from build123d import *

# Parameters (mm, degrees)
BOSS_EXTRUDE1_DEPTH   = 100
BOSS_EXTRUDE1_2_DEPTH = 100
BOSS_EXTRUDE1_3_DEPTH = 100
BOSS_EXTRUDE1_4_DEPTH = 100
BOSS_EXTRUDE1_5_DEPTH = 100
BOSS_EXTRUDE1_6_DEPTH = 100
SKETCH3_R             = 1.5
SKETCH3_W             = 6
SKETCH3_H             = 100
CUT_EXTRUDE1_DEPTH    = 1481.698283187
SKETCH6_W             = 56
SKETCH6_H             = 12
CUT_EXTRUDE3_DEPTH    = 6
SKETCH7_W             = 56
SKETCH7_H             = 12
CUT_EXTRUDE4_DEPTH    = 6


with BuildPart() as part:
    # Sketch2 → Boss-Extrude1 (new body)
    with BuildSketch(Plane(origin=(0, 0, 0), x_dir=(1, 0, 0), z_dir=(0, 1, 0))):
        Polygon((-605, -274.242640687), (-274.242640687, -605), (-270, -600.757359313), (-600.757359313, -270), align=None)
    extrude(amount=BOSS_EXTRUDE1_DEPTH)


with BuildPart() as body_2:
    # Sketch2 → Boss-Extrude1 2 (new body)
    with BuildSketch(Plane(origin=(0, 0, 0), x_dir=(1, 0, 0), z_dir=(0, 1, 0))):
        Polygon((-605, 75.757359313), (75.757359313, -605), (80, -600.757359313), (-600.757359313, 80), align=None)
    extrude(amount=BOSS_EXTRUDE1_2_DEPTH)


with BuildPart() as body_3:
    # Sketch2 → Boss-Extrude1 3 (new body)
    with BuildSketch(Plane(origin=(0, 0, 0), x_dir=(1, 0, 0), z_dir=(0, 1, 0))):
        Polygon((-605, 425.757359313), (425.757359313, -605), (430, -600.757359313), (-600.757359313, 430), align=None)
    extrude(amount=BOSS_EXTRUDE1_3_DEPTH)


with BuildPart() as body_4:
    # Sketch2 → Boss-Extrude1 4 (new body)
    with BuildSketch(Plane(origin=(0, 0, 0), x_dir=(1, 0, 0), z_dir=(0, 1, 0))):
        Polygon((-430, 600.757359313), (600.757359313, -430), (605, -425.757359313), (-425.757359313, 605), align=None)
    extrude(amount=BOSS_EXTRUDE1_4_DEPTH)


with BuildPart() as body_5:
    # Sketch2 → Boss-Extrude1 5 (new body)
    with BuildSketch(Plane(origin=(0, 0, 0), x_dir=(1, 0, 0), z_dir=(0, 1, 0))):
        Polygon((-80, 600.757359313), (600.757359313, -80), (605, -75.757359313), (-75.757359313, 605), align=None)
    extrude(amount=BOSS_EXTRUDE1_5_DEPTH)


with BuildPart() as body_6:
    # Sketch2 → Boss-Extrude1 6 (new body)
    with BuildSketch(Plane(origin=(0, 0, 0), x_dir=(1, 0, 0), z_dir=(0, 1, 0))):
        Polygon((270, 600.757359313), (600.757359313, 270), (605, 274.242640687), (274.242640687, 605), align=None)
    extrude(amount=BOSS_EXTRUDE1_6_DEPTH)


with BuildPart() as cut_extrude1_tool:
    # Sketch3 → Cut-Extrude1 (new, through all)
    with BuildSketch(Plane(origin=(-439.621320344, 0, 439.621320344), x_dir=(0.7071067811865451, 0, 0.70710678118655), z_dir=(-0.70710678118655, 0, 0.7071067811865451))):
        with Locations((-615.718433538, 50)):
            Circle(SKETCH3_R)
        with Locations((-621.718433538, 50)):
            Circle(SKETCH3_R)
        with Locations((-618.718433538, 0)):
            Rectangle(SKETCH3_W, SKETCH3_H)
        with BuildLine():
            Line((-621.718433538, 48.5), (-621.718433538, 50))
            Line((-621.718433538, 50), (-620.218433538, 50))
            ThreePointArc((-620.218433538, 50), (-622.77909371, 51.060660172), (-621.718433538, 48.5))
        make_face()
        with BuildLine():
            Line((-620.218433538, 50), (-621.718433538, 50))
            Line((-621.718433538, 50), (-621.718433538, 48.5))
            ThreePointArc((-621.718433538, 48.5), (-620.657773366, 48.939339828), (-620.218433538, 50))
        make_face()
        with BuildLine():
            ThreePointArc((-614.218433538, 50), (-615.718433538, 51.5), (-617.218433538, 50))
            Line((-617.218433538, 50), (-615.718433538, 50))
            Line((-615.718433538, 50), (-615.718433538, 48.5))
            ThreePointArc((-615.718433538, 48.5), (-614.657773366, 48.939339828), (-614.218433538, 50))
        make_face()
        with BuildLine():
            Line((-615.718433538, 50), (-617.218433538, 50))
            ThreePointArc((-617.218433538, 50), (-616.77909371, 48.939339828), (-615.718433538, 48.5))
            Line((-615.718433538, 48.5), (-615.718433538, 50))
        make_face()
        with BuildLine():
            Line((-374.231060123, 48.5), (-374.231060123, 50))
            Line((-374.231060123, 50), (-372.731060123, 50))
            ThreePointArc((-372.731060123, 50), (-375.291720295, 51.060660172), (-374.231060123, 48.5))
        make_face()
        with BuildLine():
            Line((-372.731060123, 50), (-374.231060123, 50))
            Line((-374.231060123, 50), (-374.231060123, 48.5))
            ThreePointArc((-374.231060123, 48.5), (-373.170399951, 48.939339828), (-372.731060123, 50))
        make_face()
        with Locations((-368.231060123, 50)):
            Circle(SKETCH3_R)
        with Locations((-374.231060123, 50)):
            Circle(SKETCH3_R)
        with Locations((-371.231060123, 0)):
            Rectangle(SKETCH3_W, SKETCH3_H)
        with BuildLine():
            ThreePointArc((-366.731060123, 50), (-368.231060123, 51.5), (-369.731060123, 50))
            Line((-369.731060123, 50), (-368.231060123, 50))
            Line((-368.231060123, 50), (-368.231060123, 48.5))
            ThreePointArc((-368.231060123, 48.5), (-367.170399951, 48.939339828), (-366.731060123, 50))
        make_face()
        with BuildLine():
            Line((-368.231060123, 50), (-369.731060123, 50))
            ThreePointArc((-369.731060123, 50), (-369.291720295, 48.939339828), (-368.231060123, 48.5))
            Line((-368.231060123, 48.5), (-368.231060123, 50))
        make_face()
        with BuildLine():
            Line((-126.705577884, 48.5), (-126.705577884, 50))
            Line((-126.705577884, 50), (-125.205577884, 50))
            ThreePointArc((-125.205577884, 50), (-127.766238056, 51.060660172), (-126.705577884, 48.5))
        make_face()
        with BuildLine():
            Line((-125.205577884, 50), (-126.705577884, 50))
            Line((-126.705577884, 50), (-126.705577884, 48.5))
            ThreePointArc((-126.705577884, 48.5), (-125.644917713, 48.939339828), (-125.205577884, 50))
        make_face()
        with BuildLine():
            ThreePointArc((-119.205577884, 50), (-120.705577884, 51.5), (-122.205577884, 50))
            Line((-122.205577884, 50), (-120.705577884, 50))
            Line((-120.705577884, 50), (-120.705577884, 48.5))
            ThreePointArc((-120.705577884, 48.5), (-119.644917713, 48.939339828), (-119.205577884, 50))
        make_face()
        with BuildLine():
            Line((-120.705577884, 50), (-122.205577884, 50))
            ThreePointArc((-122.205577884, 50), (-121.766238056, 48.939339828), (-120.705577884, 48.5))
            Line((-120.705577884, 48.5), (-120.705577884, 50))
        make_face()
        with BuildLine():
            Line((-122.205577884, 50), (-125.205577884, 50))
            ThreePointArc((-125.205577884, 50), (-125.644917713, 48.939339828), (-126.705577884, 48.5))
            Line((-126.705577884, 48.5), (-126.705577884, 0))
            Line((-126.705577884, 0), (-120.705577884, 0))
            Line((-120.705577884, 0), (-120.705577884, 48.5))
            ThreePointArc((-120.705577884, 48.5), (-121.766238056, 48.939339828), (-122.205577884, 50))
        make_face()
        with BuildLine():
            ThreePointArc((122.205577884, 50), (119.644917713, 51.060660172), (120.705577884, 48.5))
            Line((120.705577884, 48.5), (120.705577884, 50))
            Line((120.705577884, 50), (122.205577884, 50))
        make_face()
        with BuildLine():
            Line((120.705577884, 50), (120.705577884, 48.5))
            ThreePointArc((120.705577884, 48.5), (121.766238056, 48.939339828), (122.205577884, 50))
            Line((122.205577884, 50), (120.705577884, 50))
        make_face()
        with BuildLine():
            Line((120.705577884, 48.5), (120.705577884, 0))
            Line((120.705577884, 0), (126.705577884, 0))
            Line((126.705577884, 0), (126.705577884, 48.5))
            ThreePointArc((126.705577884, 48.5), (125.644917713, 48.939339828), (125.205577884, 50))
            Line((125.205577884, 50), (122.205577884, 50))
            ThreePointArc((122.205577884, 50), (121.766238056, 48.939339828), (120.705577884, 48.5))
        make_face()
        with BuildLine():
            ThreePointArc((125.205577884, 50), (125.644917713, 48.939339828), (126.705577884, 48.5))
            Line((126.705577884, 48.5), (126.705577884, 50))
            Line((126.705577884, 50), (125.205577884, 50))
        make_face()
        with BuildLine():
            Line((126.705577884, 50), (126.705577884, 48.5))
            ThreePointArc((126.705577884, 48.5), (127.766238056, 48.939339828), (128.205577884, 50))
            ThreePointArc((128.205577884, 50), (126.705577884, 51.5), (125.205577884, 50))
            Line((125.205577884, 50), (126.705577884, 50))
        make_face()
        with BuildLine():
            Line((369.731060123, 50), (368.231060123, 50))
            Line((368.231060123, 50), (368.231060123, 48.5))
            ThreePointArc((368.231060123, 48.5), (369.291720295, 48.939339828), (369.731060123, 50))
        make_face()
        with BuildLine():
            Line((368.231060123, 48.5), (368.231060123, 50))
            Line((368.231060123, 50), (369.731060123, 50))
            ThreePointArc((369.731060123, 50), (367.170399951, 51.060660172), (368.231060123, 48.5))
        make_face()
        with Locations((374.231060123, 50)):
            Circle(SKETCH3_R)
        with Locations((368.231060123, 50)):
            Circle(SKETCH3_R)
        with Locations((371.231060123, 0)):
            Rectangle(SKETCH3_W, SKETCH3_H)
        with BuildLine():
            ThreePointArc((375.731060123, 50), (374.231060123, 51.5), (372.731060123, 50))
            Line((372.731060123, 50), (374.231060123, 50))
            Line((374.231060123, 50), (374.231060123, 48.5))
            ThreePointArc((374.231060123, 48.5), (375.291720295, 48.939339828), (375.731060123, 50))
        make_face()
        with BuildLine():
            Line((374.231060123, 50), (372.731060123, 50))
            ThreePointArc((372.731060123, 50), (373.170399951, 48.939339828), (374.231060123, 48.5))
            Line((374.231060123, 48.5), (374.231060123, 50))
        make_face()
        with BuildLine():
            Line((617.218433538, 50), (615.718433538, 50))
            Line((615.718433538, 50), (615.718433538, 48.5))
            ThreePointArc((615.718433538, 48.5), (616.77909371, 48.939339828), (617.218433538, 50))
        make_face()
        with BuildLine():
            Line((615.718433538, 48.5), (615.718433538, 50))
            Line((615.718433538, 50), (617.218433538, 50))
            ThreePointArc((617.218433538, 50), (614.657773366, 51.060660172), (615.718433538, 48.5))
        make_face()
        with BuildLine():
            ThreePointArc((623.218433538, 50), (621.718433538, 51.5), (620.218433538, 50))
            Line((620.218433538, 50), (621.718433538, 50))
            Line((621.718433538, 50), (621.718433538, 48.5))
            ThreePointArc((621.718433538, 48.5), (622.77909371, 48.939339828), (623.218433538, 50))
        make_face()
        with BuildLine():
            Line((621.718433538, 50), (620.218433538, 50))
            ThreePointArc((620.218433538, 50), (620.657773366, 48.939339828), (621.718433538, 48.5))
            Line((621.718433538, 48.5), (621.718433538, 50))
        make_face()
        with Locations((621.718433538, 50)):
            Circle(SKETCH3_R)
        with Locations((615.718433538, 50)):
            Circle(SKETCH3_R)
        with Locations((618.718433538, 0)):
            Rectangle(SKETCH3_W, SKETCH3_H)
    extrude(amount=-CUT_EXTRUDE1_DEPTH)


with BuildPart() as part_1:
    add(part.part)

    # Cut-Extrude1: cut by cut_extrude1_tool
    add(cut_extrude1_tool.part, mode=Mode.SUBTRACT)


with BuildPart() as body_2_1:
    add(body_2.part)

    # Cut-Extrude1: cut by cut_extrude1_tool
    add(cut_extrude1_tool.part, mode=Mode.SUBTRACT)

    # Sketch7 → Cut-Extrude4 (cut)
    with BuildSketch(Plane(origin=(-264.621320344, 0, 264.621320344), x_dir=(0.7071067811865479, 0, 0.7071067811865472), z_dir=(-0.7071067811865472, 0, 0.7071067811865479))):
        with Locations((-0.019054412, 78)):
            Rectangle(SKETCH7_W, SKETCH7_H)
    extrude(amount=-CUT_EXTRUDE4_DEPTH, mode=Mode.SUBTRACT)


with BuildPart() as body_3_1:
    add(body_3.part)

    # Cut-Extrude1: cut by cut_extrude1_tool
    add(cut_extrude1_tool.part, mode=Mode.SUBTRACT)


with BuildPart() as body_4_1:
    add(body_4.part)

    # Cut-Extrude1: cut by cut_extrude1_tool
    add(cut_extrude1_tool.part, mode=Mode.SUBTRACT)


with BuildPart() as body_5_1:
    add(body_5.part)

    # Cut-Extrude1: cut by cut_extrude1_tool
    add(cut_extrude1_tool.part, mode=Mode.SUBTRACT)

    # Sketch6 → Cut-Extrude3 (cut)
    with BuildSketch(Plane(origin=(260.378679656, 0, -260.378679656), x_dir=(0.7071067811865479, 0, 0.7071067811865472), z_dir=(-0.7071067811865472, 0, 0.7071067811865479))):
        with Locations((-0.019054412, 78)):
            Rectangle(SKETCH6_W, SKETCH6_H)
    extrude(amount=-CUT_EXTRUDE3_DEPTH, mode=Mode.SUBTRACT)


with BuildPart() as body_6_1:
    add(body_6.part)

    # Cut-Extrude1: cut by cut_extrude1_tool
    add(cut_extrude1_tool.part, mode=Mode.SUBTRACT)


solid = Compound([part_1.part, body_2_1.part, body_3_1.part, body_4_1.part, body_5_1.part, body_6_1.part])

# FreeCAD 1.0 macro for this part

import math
import FreeCAD as App
import Part
import Sketcher
Q = App.Units.Quantity

doc = App.newDocument("Part")
body = doc.addObject("PartDesign::Body", "Body")

sketch1 = doc.addObject("Sketcher::SketchObject", "Sketch")
body.addObject(sketch1)
sketch1.AttachmentSupport = (doc.XZ_Plane, [""])
sketch1.MapMode = "FlatFace"
sketch1.addGeometry(Part.LineSegment(App.Vector(-605, 274.242641, 0), App.Vector(-274.242641, 605, 0)), False)
sketch1.addGeometry(Part.LineSegment(App.Vector(-274.242641, 605, 0), App.Vector(-270, 600.757359, 0)), False)
sketch1.addGeometry(Part.LineSegment(App.Vector(-270, 600.757359, 0), App.Vector(-600.757359, 270, 0)), False)
sketch1.addGeometry(Part.LineSegment(App.Vector(-600.757359, 270, 0), App.Vector(-605, 274.242641, 0)), False)
sketch1.addConstraint(Sketcher.Constraint("Coincident", 0, 2, 1, 1))
sketch1.addConstraint(Sketcher.Constraint("Coincident", 1, 2, 2, 1))
sketch1.addConstraint(Sketcher.Constraint("Coincident", 2, 2, 3, 1))
sketch1.addConstraint(Sketcher.Constraint("Coincident", 3, 2, 0, 1))
sketch1.addConstraint(Sketcher.Constraint("Perpendicular", 0, 1))
sketch1.addConstraint(Sketcher.Constraint("Perpendicular", 1, 2))
sketch1.addConstraint(Sketcher.Constraint("Perpendicular", 2, 3))
sketch1.addConstraint(Sketcher.Constraint("Angle", 0, Q("45 deg")))
sketch1.addConstraint(Sketcher.Constraint("Distance", 1, 6.0))
sketch1.addConstraint(Sketcher.Constraint("DistanceY", -1, 1, 0, 2, 605.0))
sketch1.addConstraint(Sketcher.Constraint("DistanceX", 1, 2, -1, 1, 270.0))
sketch1.addConstraint(Sketcher.Constraint("DistanceY", -1, 1, 2, 2, 270.0))
pad1 = doc.addObject("PartDesign::Pad", "Pad")
body.addObject(pad1)
pad1.Profile = sketch1
pad1.Length = 100
pad1.Reversed = True
body2 = doc.addObject("PartDesign::Body", "Body001")

sketch2 = doc.addObject("Sketcher::SketchObject", "Sketch001")
body2.addObject(sketch2)
sketch2.AttachmentSupport = (doc.getObject("XZ_Plane001"), [""])
sketch2.MapMode = "FlatFace"
sketch2.addGeometry(Part.LineSegment(App.Vector(-605, -75.757359, 0), App.Vector(75.757359, 605, 0)), False)
sketch2.addGeometry(Part.LineSegment(App.Vector(75.757359, 605, 0), App.Vector(80, 600.757359, 0)), False)
sketch2.addGeometry(Part.LineSegment(App.Vector(80, 600.757359, 0), App.Vector(-600.757359, -80, 0)), False)
sketch2.addGeometry(Part.LineSegment(App.Vector(-600.757359, -80, 0), App.Vector(-605, -75.757359, 0)), False)
sketch2.addConstraint(Sketcher.Constraint("Coincident", 0, 2, 1, 1))
sketch2.addConstraint(Sketcher.Constraint("Coincident", 1, 2, 2, 1))
sketch2.addConstraint(Sketcher.Constraint("Coincident", 2, 2, 3, 1))
sketch2.addConstraint(Sketcher.Constraint("Coincident", 3, 2, 0, 1))
sketch2.addConstraint(Sketcher.Constraint("Perpendicular", 0, 1))
sketch2.addConstraint(Sketcher.Constraint("Perpendicular", 1, 2))
sketch2.addConstraint(Sketcher.Constraint("Perpendicular", 2, 3))
sketch2.addConstraint(Sketcher.Constraint("Angle", 0, Q("45 deg")))
sketch2.addConstraint(Sketcher.Constraint("Distance", 1, 6.0))
sketch2.addConstraint(Sketcher.Constraint("DistanceY", -1, 1, 0, 2, 605.0))
sketch2.addConstraint(Sketcher.Constraint("DistanceX", -1, 1, 1, 2, 80.0))
sketch2.addConstraint(Sketcher.Constraint("DistanceY", 2, 2, -1, 1, 80.0))
pad2 = doc.addObject("PartDesign::Pad", "Pad001")
body2.addObject(pad2)
pad2.Profile = sketch2
pad2.Length = 100
pad2.Reversed = True
body3 = doc.addObject("PartDesign::Body", "Body002")

sketch3 = doc.addObject("Sketcher::SketchObject", "Sketch002")
body3.addObject(sketch3)
sketch3.AttachmentSupport = (doc.getObject("XZ_Plane002"), [""])
sketch3.MapMode = "FlatFace"
sketch3.addGeometry(Part.LineSegment(App.Vector(-605, -425.757359, 0), App.Vector(425.757359, 605, 0)), False)
sketch3.addGeometry(Part.LineSegment(App.Vector(425.757359, 605, 0), App.Vector(430, 600.757359, 0)), False)
sketch3.addGeometry(Part.LineSegment(App.Vector(430, 600.757359, 0), App.Vector(-600.757359, -430, 0)), False)
sketch3.addGeometry(Part.LineSegment(App.Vector(-600.757359, -430, 0), App.Vector(-605, -425.757359, 0)), False)
sketch3.addConstraint(Sketcher.Constraint("Coincident", 0, 2, 1, 1))
sketch3.addConstraint(Sketcher.Constraint("Coincident", 1, 2, 2, 1))
sketch3.addConstraint(Sketcher.Constraint("Coincident", 2, 2, 3, 1))
sketch3.addConstraint(Sketcher.Constraint("Coincident", 3, 2, 0, 1))
sketch3.addConstraint(Sketcher.Constraint("Perpendicular", 0, 1))
sketch3.addConstraint(Sketcher.Constraint("Perpendicular", 1, 2))
sketch3.addConstraint(Sketcher.Constraint("Perpendicular", 2, 3))
sketch3.addConstraint(Sketcher.Constraint("Angle", 0, Q("45 deg")))
sketch3.addConstraint(Sketcher.Constraint("Distance", 1, 6.0))
sketch3.addConstraint(Sketcher.Constraint("DistanceY", -1, 1, 0, 2, 605.0))
sketch3.addConstraint(Sketcher.Constraint("DistanceX", -1, 1, 1, 2, 430.0))
sketch3.addConstraint(Sketcher.Constraint("DistanceY", 2, 2, -1, 1, 430.0))
pad3 = doc.addObject("PartDesign::Pad", "Pad002")
body3.addObject(pad3)
pad3.Profile = sketch3
pad3.Length = 100
pad3.Reversed = True
body4 = doc.addObject("PartDesign::Body", "Body003")

sketch4 = doc.addObject("Sketcher::SketchObject", "Sketch003")
body4.addObject(sketch4)
sketch4.AttachmentSupport = (doc.getObject("XZ_Plane003"), [""])
sketch4.MapMode = "FlatFace"
sketch4.addGeometry(Part.LineSegment(App.Vector(-430, -600.757359, 0), App.Vector(600.757359, 430, 0)), False)
sketch4.addGeometry(Part.LineSegment(App.Vector(600.757359, 430, 0), App.Vector(605, 425.757359, 0)), False)
sketch4.addGeometry(Part.LineSegment(App.Vector(605, 425.757359, 0), App.Vector(-425.757359, -605, 0)), False)
sketch4.addGeometry(Part.LineSegment(App.Vector(-425.757359, -605, 0), App.Vector(-430, -600.757359, 0)), False)
sketch4.addConstraint(Sketcher.Constraint("Coincident", 0, 2, 1, 1))
sketch4.addConstraint(Sketcher.Constraint("Coincident", 1, 2, 2, 1))
sketch4.addConstraint(Sketcher.Constraint("Coincident", 2, 2, 3, 1))
sketch4.addConstraint(Sketcher.Constraint("Coincident", 3, 2, 0, 1))
sketch4.addConstraint(Sketcher.Constraint("Perpendicular", 0, 1))
sketch4.addConstraint(Sketcher.Constraint("Perpendicular", 1, 2))
sketch4.addConstraint(Sketcher.Constraint("Perpendicular", 2, 3))
sketch4.addConstraint(Sketcher.Constraint("Angle", 0, Q("45 deg")))
sketch4.addConstraint(Sketcher.Constraint("Distance", 1, 6.0))
sketch4.addConstraint(Sketcher.Constraint("DistanceY", -1, 1, 0, 2, 430.0))
sketch4.addConstraint(Sketcher.Constraint("DistanceX", -1, 1, 1, 2, 605.0))
sketch4.addConstraint(Sketcher.Constraint("DistanceY", 2, 2, -1, 1, 605.0))
pad4 = doc.addObject("PartDesign::Pad", "Pad003")
body4.addObject(pad4)
pad4.Profile = sketch4
pad4.Length = 100
pad4.Reversed = True
body5 = doc.addObject("PartDesign::Body", "Body004")

sketch5 = doc.addObject("Sketcher::SketchObject", "Sketch004")
body5.addObject(sketch5)
sketch5.AttachmentSupport = (doc.getObject("XZ_Plane004"), [""])
sketch5.MapMode = "FlatFace"
sketch5.addGeometry(Part.LineSegment(App.Vector(-80, -600.757359, 0), App.Vector(600.757359, 80, 0)), False)
sketch5.addGeometry(Part.LineSegment(App.Vector(600.757359, 80, 0), App.Vector(605, 75.757359, 0)), False)
sketch5.addGeometry(Part.LineSegment(App.Vector(605, 75.757359, 0), App.Vector(-75.757359, -605, 0)), False)
sketch5.addGeometry(Part.LineSegment(App.Vector(-75.757359, -605, 0), App.Vector(-80, -600.757359, 0)), False)
sketch5.addConstraint(Sketcher.Constraint("Coincident", 0, 2, 1, 1))
sketch5.addConstraint(Sketcher.Constraint("Coincident", 1, 2, 2, 1))
sketch5.addConstraint(Sketcher.Constraint("Coincident", 2, 2, 3, 1))
sketch5.addConstraint(Sketcher.Constraint("Coincident", 3, 2, 0, 1))
sketch5.addConstraint(Sketcher.Constraint("Perpendicular", 0, 1))
sketch5.addConstraint(Sketcher.Constraint("Perpendicular", 1, 2))
sketch5.addConstraint(Sketcher.Constraint("Perpendicular", 2, 3))
sketch5.addConstraint(Sketcher.Constraint("Angle", 0, Q("45 deg")))
sketch5.addConstraint(Sketcher.Constraint("Distance", 1, 6.0))
sketch5.addConstraint(Sketcher.Constraint("DistanceY", -1, 1, 0, 2, 80.0))
sketch5.addConstraint(Sketcher.Constraint("DistanceX", -1, 1, 1, 2, 605.0))
sketch5.addConstraint(Sketcher.Constraint("DistanceY", 2, 2, -1, 1, 605.0))
pad5 = doc.addObject("PartDesign::Pad", "Pad004")
body5.addObject(pad5)
pad5.Profile = sketch5
pad5.Length = 100
pad5.Reversed = True
body6 = doc.addObject("PartDesign::Body", "Body005")

sketch6 = doc.addObject("Sketcher::SketchObject", "Sketch005")
body6.addObject(sketch6)
sketch6.AttachmentSupport = (doc.getObject("XZ_Plane005"), [""])
sketch6.MapMode = "FlatFace"
sketch6.addGeometry(Part.LineSegment(App.Vector(270, -600.757359, 0), App.Vector(600.757359, -270, 0)), False)
sketch6.addGeometry(Part.LineSegment(App.Vector(600.757359, -270, 0), App.Vector(605, -274.242641, 0)), False)
sketch6.addGeometry(Part.LineSegment(App.Vector(605, -274.242641, 0), App.Vector(274.242641, -605, 0)), False)
sketch6.addGeometry(Part.LineSegment(App.Vector(274.242641, -605, 0), App.Vector(270, -600.757359, 0)), False)
sketch6.addConstraint(Sketcher.Constraint("Coincident", 0, 2, 1, 1))
sketch6.addConstraint(Sketcher.Constraint("Coincident", 1, 2, 2, 1))
sketch6.addConstraint(Sketcher.Constraint("Coincident", 2, 2, 3, 1))
sketch6.addConstraint(Sketcher.Constraint("Coincident", 3, 2, 0, 1))
sketch6.addConstraint(Sketcher.Constraint("Perpendicular", 0, 1))
sketch6.addConstraint(Sketcher.Constraint("Perpendicular", 1, 2))
sketch6.addConstraint(Sketcher.Constraint("Perpendicular", 2, 3))
sketch6.addConstraint(Sketcher.Constraint("Angle", 0, Q("45 deg")))
sketch6.addConstraint(Sketcher.Constraint("Distance", 1, 6.0))
sketch6.addConstraint(Sketcher.Constraint("DistanceY", 0, 2, -1, 1, 270.0))
sketch6.addConstraint(Sketcher.Constraint("DistanceX", -1, 1, 1, 2, 605.0))
sketch6.addConstraint(Sketcher.Constraint("DistanceY", 2, 2, -1, 1, 605.0))
pad6 = doc.addObject("PartDesign::Pad", "Pad005")
body6.addObject(pad6)
pad6.Profile = sketch6
pad6.Length = 100
pad6.Reversed = True
body7 = doc.addObject("PartDesign::Body", "Body006")
body7.AllowCompound = True

sketch7 = doc.addObject("Sketcher::SketchObject", "Sketch006")
body7.addObject(sketch7)
sketch7.Placement = App.Placement(App.Vector(-439.62132, 0, 439.62132), App.Rotation(App.Vector(0.707106781, 0, 0.707106781), App.Vector(0, 0.999999999, 0), App.Vector(-0.707106781, 0, 0.707106781), "ZXY"))
sketch7.addGeometry(Part.LineSegment(App.Vector(-621.718433, 48.5, 0), App.Vector(-621.718433, -50, 0)), False)
sketch7.addGeometry(Part.LineSegment(App.Vector(-621.718433, -50, 0), App.Vector(-615.718433, -50, 0)), False)
sketch7.addGeometry(Part.LineSegment(App.Vector(-615.718433, -50, 0), App.Vector(-615.718433, 48.5, 0)), False)
sketch7.addGeometry(Part.ArcOfCircle(Part.Circle(App.Vector(-615.718433, 50, 0), App.Vector(0, 0, 1), 1.5), math.radians(-90), math.radians(180)), False)
sketch7.addGeometry(Part.LineSegment(App.Vector(-617.218433, 50, 0), App.Vector(-620.218433, 50, 0)), False)
sketch7.addGeometry(Part.ArcOfCircle(Part.Circle(App.Vector(-621.718433, 50, 0), App.Vector(0, 0, 1), 1.5), math.radians(0), math.radians(270)), False)
sketch7.addGeometry(Part.LineSegment(App.Vector(-369.73106, 50, 0), App.Vector(-372.73106, 50, 0)), False)
sketch7.addGeometry(Part.ArcOfCircle(Part.Circle(App.Vector(-374.23106, 50, 0), App.Vector(0, 0, 1), 1.5), math.radians(0), math.radians(270)), False)
sketch7.addGeometry(Part.LineSegment(App.Vector(-374.23106, 48.5, 0), App.Vector(-374.23106, -50, 0)), False)
sketch7.addGeometry(Part.LineSegment(App.Vector(-374.23106, -50, 0), App.Vector(-368.23106, -50, 0)), False)
sketch7.addGeometry(Part.LineSegment(App.Vector(-368.23106, -50, 0), App.Vector(-368.23106, 48.5, 0)), False)
sketch7.addGeometry(Part.ArcOfCircle(Part.Circle(App.Vector(-368.23106, 50, 0), App.Vector(0, 0, 1), 1.5), math.radians(-90), math.radians(180)), False)
sketch7.addGeometry(Part.ArcOfCircle(Part.Circle(App.Vector(-126.705578, 50, 0), App.Vector(0, 0, 1), 1.5), math.radians(0), math.radians(270)), False)
sketch7.addGeometry(Part.LineSegment(App.Vector(-126.705578, 48.5, 0), App.Vector(-126.705578, 0, 0)), False)
sketch7.addGeometry(Part.LineSegment(App.Vector(-126.705578, 0, 0), App.Vector(-120.705578, 0, 0)), False)
sketch7.addGeometry(Part.LineSegment(App.Vector(-120.705578, 0, 0), App.Vector(-120.705578, 48.5, 0)), False)
sketch7.addGeometry(Part.ArcOfCircle(Part.Circle(App.Vector(-120.705578, 50, 0), App.Vector(0, 0, 1), 1.5), math.radians(-90), math.radians(0)), False)
sketch7.addGeometry(Part.ArcOfCircle(Part.Circle(App.Vector(-120.705578, 50, 0), App.Vector(0, 0, 1), 1.5), math.radians(0), math.radians(180)), False)
sketch7.addGeometry(Part.LineSegment(App.Vector(-122.205578, 50, 0), App.Vector(-125.205578, 50, 0)), False)
sketch7.addGeometry(Part.LineSegment(App.Vector(126.705578, 0, 0), App.Vector(126.705578, 48.5, 0)), False)
sketch7.addGeometry(Part.ArcOfCircle(Part.Circle(App.Vector(126.705578, 50, 0), App.Vector(0, 0, 1), 1.5), math.radians(-90), math.radians(0)), False)
sketch7.addGeometry(Part.ArcOfCircle(Part.Circle(App.Vector(126.705578, 50, 0), App.Vector(0, 0, 1), 1.5), math.radians(0), math.radians(180)), False)
sketch7.addGeometry(Part.LineSegment(App.Vector(125.205578, 50, 0), App.Vector(122.205578, 50, 0)), False)
sketch7.addGeometry(Part.ArcOfCircle(Part.Circle(App.Vector(120.705578, 50, 0), App.Vector(0, 0, 1), 1.5), math.radians(0), math.radians(270)), False)
sketch7.addGeometry(Part.LineSegment(App.Vector(120.705578, 48.5, 0), App.Vector(120.705578, 0, 0)), False)
sketch7.addGeometry(Part.LineSegment(App.Vector(120.705578, 0, 0), App.Vector(126.705578, 0, 0)), False)
sketch7.addGeometry(Part.ArcOfCircle(Part.Circle(App.Vector(368.23106, 50, 0), App.Vector(0, 0, 1), 1.5), math.radians(0), math.radians(270)), False)
sketch7.addGeometry(Part.LineSegment(App.Vector(368.23106, 48.5, 0), App.Vector(368.23106, -50, 0)), False)
sketch7.addGeometry(Part.LineSegment(App.Vector(368.23106, -50, 0), App.Vector(374.23106, -50, 0)), False)
sketch7.addGeometry(Part.LineSegment(App.Vector(374.23106, -50, 0), App.Vector(374.23106, 48.5, 0)), False)
sketch7.addGeometry(Part.ArcOfCircle(Part.Circle(App.Vector(374.23106, 50, 0), App.Vector(0, 0, 1), 1.5), math.radians(-90), math.radians(180)), False)
sketch7.addGeometry(Part.LineSegment(App.Vector(372.73106, 50, 0), App.Vector(369.73106, 50, 0)), False)
sketch7.addGeometry(Part.ArcOfCircle(Part.Circle(App.Vector(615.718433, 50, 0), App.Vector(0, 0, 1), 1.5), math.radians(0), math.radians(270)), False)
sketch7.addGeometry(Part.LineSegment(App.Vector(615.718433, 48.5, 0), App.Vector(615.718433, -50, 0)), False)
sketch7.addGeometry(Part.LineSegment(App.Vector(615.718433, -50, 0), App.Vector(621.718433, -50, 0)), False)
sketch7.addGeometry(Part.LineSegment(App.Vector(621.718433, -50, 0), App.Vector(621.718433, 48.5, 0)), False)
sketch7.addGeometry(Part.ArcOfCircle(Part.Circle(App.Vector(621.718433, 50, 0), App.Vector(0, 0, 1), 1.5), math.radians(-90), math.radians(0)), False)
sketch7.addGeometry(Part.ArcOfCircle(Part.Circle(App.Vector(621.718433, 50, 0), App.Vector(0, 0, 1), 1.5), math.radians(0), math.radians(180)), False)
sketch7.addGeometry(Part.LineSegment(App.Vector(620.218433, 50, 0), App.Vector(617.218433, 50, 0)), False)
sketch7.addConstraint(Sketcher.Constraint("Coincident", 0, 2, 1, 1))
sketch7.addConstraint(Sketcher.Constraint("Coincident", 1, 2, 2, 1))
sketch7.addConstraint(Sketcher.Constraint("Coincident", 2, 2, 3, 1))
sketch7.addConstraint(Sketcher.Constraint("Coincident", 3, 2, 4, 1))
sketch7.addConstraint(Sketcher.Constraint("Coincident", 4, 2, 5, 1))
sketch7.addConstraint(Sketcher.Constraint("Coincident", 5, 2, 0, 1))
sketch7.addConstraint(Sketcher.Constraint("Coincident", 6, 2, 7, 1))
sketch7.addConstraint(Sketcher.Constraint("Coincident", 7, 2, 8, 1))
sketch7.addConstraint(Sketcher.Constraint("Coincident", 8, 2, 9, 1))
sketch7.addConstraint(Sketcher.Constraint("Coincident", 9, 2, 10, 1))
sketch7.addConstraint(Sketcher.Constraint("Coincident", 10, 2, 11, 1))
sketch7.addConstraint(Sketcher.Constraint("Coincident", 11, 2, 6, 1))
sketch7.addConstraint(Sketcher.Constraint("Coincident", 12, 2, 13, 1))
sketch7.addConstraint(Sketcher.Constraint("Coincident", 13, 2, 14, 1))
sketch7.addConstraint(Sketcher.Constraint("Coincident", 14, 2, 15, 1))
sketch7.addConstraint(Sketcher.Constraint("Coincident", 15, 2, 16, 1))
sketch7.addConstraint(Sketcher.Constraint("Tangent", 16, 2, 17, 1))
sketch7.addConstraint(Sketcher.Constraint("Coincident", 17, 2, 18, 1))
sketch7.addConstraint(Sketcher.Constraint("Coincident", 18, 2, 12, 1))
sketch7.addConstraint(Sketcher.Constraint("Coincident", 19, 2, 20, 1))
sketch7.addConstraint(Sketcher.Constraint("Tangent", 20, 2, 21, 1))
sketch7.addConstraint(Sketcher.Constraint("Coincident", 21, 2, 22, 1))
sketch7.addConstraint(Sketcher.Constraint("Coincident", 22, 2, 23, 1))
sketch7.addConstraint(Sketcher.Constraint("Coincident", 23, 2, 24, 1))
sketch7.addConstraint(Sketcher.Constraint("Coincident", 24, 2, 25, 1))
sketch7.addConstraint(Sketcher.Constraint("Coincident", 25, 2, 19, 1))
sketch7.addConstraint(Sketcher.Constraint("Coincident", 26, 2, 27, 1))
sketch7.addConstraint(Sketcher.Constraint("Coincident", 27, 2, 28, 1))
sketch7.addConstraint(Sketcher.Constraint("Coincident", 28, 2, 29, 1))
sketch7.addConstraint(Sketcher.Constraint("Coincident", 29, 2, 30, 1))
sketch7.addConstraint(Sketcher.Constraint("Coincident", 30, 2, 31, 1))
sketch7.addConstraint(Sketcher.Constraint("Coincident", 31, 2, 26, 1))
sketch7.addConstraint(Sketcher.Constraint("Coincident", 32, 2, 33, 1))
sketch7.addConstraint(Sketcher.Constraint("Coincident", 33, 2, 34, 1))
sketch7.addConstraint(Sketcher.Constraint("Coincident", 34, 2, 35, 1))
sketch7.addConstraint(Sketcher.Constraint("Coincident", 35, 2, 36, 1))
sketch7.addConstraint(Sketcher.Constraint("Tangent", 36, 2, 37, 1))
sketch7.addConstraint(Sketcher.Constraint("Coincident", 37, 2, 38, 1))
sketch7.addConstraint(Sketcher.Constraint("Coincident", 38, 2, 32, 1))
sketch7.addConstraint(Sketcher.Constraint("Vertical", 0))
sketch7.addConstraint(Sketcher.Constraint("Horizontal", 1))
sketch7.addConstraint(Sketcher.Constraint("Vertical", 2))
sketch7.addConstraint(Sketcher.Constraint("Horizontal", 4))
sketch7.addConstraint(Sketcher.Constraint("Horizontal", 6))
sketch7.addConstraint(Sketcher.Constraint("Vertical", 8))
sketch7.addConstraint(Sketcher.Constraint("Horizontal", 9))
sketch7.addConstraint(Sketcher.Constraint("Vertical", 10))
sketch7.addConstraint(Sketcher.Constraint("Vertical", 13))
sketch7.addConstraint(Sketcher.Constraint("Horizontal", 14))
sketch7.addConstraint(Sketcher.Constraint("Vertical", 15))
sketch7.addConstraint(Sketcher.Constraint("Horizontal", 18))
sketch7.addConstraint(Sketcher.Constraint("Vertical", 19))
sketch7.addConstraint(Sketcher.Constraint("Horizontal", 22))
sketch7.addConstraint(Sketcher.Constraint("Vertical", 24))
sketch7.addConstraint(Sketcher.Constraint("Horizontal", 25))
sketch7.addConstraint(Sketcher.Constraint("Vertical", 27))
sketch7.addConstraint(Sketcher.Constraint("Horizontal", 28))
sketch7.addConstraint(Sketcher.Constraint("Vertical", 29))
sketch7.addConstraint(Sketcher.Constraint("Horizontal", 31))
sketch7.addConstraint(Sketcher.Constraint("Vertical", 33))
sketch7.addConstraint(Sketcher.Constraint("Horizontal", 34))
sketch7.addConstraint(Sketcher.Constraint("Vertical", 35))
sketch7.addConstraint(Sketcher.Constraint("Horizontal", 38))
sketch7.addConstraint(Sketcher.Constraint("Equal", 3, 5))
sketch7.addConstraint(Sketcher.Constraint("Equal", 5, 7))
sketch7.addConstraint(Sketcher.Constraint("Equal", 7, 11))
sketch7.addConstraint(Sketcher.Constraint("Equal", 11, 12))
sketch7.addConstraint(Sketcher.Constraint("Equal", 12, 16))
sketch7.addConstraint(Sketcher.Constraint("Equal", 16, 17))
sketch7.addConstraint(Sketcher.Constraint("Equal", 17, 20))
sketch7.addConstraint(Sketcher.Constraint("Equal", 20, 21))
sketch7.addConstraint(Sketcher.Constraint("Equal", 21, 23))
sketch7.addConstraint(Sketcher.Constraint("Equal", 23, 26))
sketch7.addConstraint(Sketcher.Constraint("Equal", 26, 30))
sketch7.addConstraint(Sketcher.Constraint("Equal", 30, 32))
sketch7.addConstraint(Sketcher.Constraint("Equal", 32, 36))
sketch7.addConstraint(Sketcher.Constraint("Equal", 36, 37))
sketch7.addConstraint(Sketcher.Constraint("Symmetric", 14, 2, 24, 2, -1, 1))
sketch7.addConstraint(Sketcher.Constraint("Symmetric", 12, 3, 20, 3, -2))
sketch7.addConstraint(Sketcher.Constraint("Symmetric", 16, 3, 23, 3, -2))
sketch7.addConstraint(Sketcher.Constraint("Symmetric", 11, 3, 26, 3, -2))
sketch7.addConstraint(Sketcher.Constraint("Symmetric", 7, 3, 30, 3, -2))
sketch7.addConstraint(Sketcher.Constraint("Symmetric", 3, 3, 32, 3, -2))
sketch7.addConstraint(Sketcher.Constraint("Symmetric", 5, 3, 36, 3, -2))
sketch7.addConstraint(Sketcher.Constraint("Symmetric", 13, 2, 25, 2, -2))
sketch7.addConstraint(Sketcher.Constraint("Symmetric", 9, 2, 27, 2, -2))
sketch7.addConstraint(Sketcher.Constraint("Symmetric", 1, 2, 33, 2, -2))
sketch7.addConstraint(Sketcher.Constraint("Horizontal", 3, 3, 5, 3))
sketch7.addConstraint(Sketcher.Constraint("Horizontal", 5, 3, 7, 3))
sketch7.addConstraint(Sketcher.Constraint("Horizontal", 7, 3, 11, 3))
sketch7.addConstraint(Sketcher.Constraint("Horizontal", 11, 3, 12, 3))
sketch7.addConstraint(Sketcher.Constraint("Horizontal", 12, 3, 16, 3))
sketch7.addConstraint(Sketcher.Constraint("Horizontal", 37, 3, 3, 2))
sketch7.addConstraint(Sketcher.Constraint("Horizontal", 4, 2, 6, 2))
sketch7.addConstraint(Sketcher.Constraint("Horizontal", 1, 2, 8, 2))
sketch7.addConstraint(Sketcher.Constraint("Horizontal", 11, 2, 16, 2))
sketch7.addConstraint(Sketcher.Constraint("Horizontal", 16, 2, 17, 2))
sketch7.addConstraint(Sketcher.Constraint("Horizontal", 18, 2, 20, 2))
sketch7.addConstraint(Sketcher.Constraint("Horizontal", 20, 2, 21, 2))
sketch7.addConstraint(Sketcher.Constraint("Horizontal", 22, 2, 30, 2))
sketch7.addConstraint(Sketcher.Constraint("Horizontal", 31, 2, 36, 2))
sketch7.addConstraint(Sketcher.Constraint("Horizontal", 36, 2, 37, 2))
sketch7.addConstraint(Sketcher.Constraint("Vertical", 5, 3, 0, 2))
sketch7.addConstraint(Sketcher.Constraint("Vertical", 3, 3, 1, 2))
sketch7.addConstraint(Sketcher.Constraint("Vertical", 11, 3, 9, 2))
sketch7.addConstraint(Sketcher.Constraint("Vertical", 17, 3, 14, 2))
sketch7.addConstraint(Sketcher.Constraint("Vertical", 21, 3, 19, 2))
sketch7.addConstraint(Sketcher.Constraint("Vertical", 30, 3, 28, 2))
sketch7.addConstraint(Sketcher.Constraint("Vertical", 37, 3, 34, 2))
sketch7.addConstraint(Sketcher.Constraint("Equal", 4, 6))
sketch7.addConstraint(Sketcher.Constraint("Equal", 1, 9))
sketch7.addConstraint(Sketcher.Constraint("Equal", 9, 14))
sketch7.addConstraint(Sketcher.Constraint("Radius", 3, 1.5))
sketch7.addConstraint(Sketcher.Constraint("DistanceX", 1, 1, 1, 2, 6.0))
sketch7.addConstraint(Sketcher.Constraint("DistanceY", 0, 2, 0, 1, 98.5))
sketch7.addConstraint(Sketcher.Constraint("DistanceY", 13, 2, 13, 1, 48.5))
sketch7.addConstraint(Sketcher.Constraint("DistanceX", 7, 3, -1, 1, 374.23106))
sketch7.addConstraint(Sketcher.Constraint("DistanceX", 3, 3, -1, 1, 615.718433))
sketch7.addConstraint(Sketcher.Constraint("DistanceX", 12, 3, -1, 1, 126.705578))
pad7 = doc.addObject("PartDesign::Pad", "Pad006")
body7.addObject(pad7)
pad7.Profile = sketch7
pad7.Length = 1481.698283
pad7.Reversed = True
doc.recompute()

body8 = doc.addObject("PartDesign::Body", "Body007")
body8.BaseFeature = body7
boolean = doc.addObject("PartDesign::Boolean", "Boolean")
body.addObject(boolean)
boolean.Type = "Cut"
boolean.addObjects([body8])
doc.recompute()

body9 = doc.addObject("PartDesign::Body", "Body008")
body9.BaseFeature = body7
boolean2 = doc.addObject("PartDesign::Boolean", "Boolean001")
body2.addObject(boolean2)
boolean2.Type = "Cut"
boolean2.addObjects([body9])
doc.recompute()

sketch8 = doc.addObject("Sketcher::SketchObject", "Sketch007")
body2.addObject(sketch8)
sketch8.Placement = App.Placement(App.Vector(-264.62132, 0, 264.62132), App.Rotation(App.Vector(0.707106781, 0, 0.707106781), App.Vector(0, 0.999999999, 0), App.Vector(-0.707106781, 0, 0.707106781), "ZXY"))
sketch8.addGeometry(Part.LineSegment(App.Vector(-28.019054, 84, 0), App.Vector(-28.019054, 72, 0)), False)
sketch8.addGeometry(Part.LineSegment(App.Vector(-28.019054, 72, 0), App.Vector(27.980946, 72, 0)), False)
sketch8.addGeometry(Part.LineSegment(App.Vector(27.980946, 72, 0), App.Vector(27.980946, 84, 0)), False)
sketch8.addGeometry(Part.LineSegment(App.Vector(27.980946, 84, 0), App.Vector(-28.019054, 84, 0)), False)
sketch8.addConstraint(Sketcher.Constraint("Coincident", 0, 2, 1, 1))
sketch8.addConstraint(Sketcher.Constraint("Coincident", 1, 2, 2, 1))
sketch8.addConstraint(Sketcher.Constraint("Coincident", 2, 2, 3, 1))
sketch8.addConstraint(Sketcher.Constraint("Coincident", 3, 2, 0, 1))
sketch8.addConstraint(Sketcher.Constraint("Vertical", 0))
sketch8.addConstraint(Sketcher.Constraint("Horizontal", 1))
sketch8.addConstraint(Sketcher.Constraint("Vertical", 2))
sketch8.addConstraint(Sketcher.Constraint("Horizontal", 3))
sketch8.addConstraint(Sketcher.Constraint("DistanceX", 1, 1, 1, 2, 56.0))
sketch8.addConstraint(Sketcher.Constraint("DistanceY", 0, 2, 0, 1, 12.0))
sketch8.addConstraint(Sketcher.Constraint("DistanceY", -1, 1, 0, 2, 72.0))
sketch8.addConstraint(Sketcher.Constraint("DistanceX", 0, 2, -1, 1, 28.019054))
pocket1 = doc.addObject("PartDesign::Pocket", "Pocket")
body2.addObject(pocket1)
pocket1.Profile = sketch8
pocket1.Length = 6
doc.recompute()

body10 = doc.addObject("PartDesign::Body", "Body009")
body10.BaseFeature = body7
boolean3 = doc.addObject("PartDesign::Boolean", "Boolean002")
body3.addObject(boolean3)
boolean3.Type = "Cut"
boolean3.addObjects([body10])
doc.recompute()

body11 = doc.addObject("PartDesign::Body", "Body010")
body11.BaseFeature = body7
boolean4 = doc.addObject("PartDesign::Boolean", "Boolean003")
body4.addObject(boolean4)
boolean4.Type = "Cut"
boolean4.addObjects([body11])
doc.recompute()

body12 = doc.addObject("PartDesign::Body", "Body011")
body12.BaseFeature = body7
boolean5 = doc.addObject("PartDesign::Boolean", "Boolean004")
body5.addObject(boolean5)
boolean5.Type = "Cut"
boolean5.addObjects([body12])
doc.recompute()

sketch9 = doc.addObject("Sketcher::SketchObject", "Sketch008")
body5.addObject(sketch9)
sketch9.Placement = App.Placement(App.Vector(260.37868, 0, -260.37868), App.Rotation(App.Vector(0.707106781, 0, 0.707106781), App.Vector(0, 0.999999999, 0), App.Vector(-0.707106781, 0, 0.707106781), "ZXY"))
sketch9.addGeometry(Part.LineSegment(App.Vector(-28.019054, 84, 0), App.Vector(-28.019054, 72, 0)), False)
sketch9.addGeometry(Part.LineSegment(App.Vector(-28.019054, 72, 0), App.Vector(27.980946, 72, 0)), False)
sketch9.addGeometry(Part.LineSegment(App.Vector(27.980946, 72, 0), App.Vector(27.980946, 84, 0)), False)
sketch9.addGeometry(Part.LineSegment(App.Vector(27.980946, 84, 0), App.Vector(-28.019054, 84, 0)), False)
sketch9.addConstraint(Sketcher.Constraint("Coincident", 0, 2, 1, 1))
sketch9.addConstraint(Sketcher.Constraint("Coincident", 1, 2, 2, 1))
sketch9.addConstraint(Sketcher.Constraint("Coincident", 2, 2, 3, 1))
sketch9.addConstraint(Sketcher.Constraint("Coincident", 3, 2, 0, 1))
sketch9.addConstraint(Sketcher.Constraint("Vertical", 0))
sketch9.addConstraint(Sketcher.Constraint("Horizontal", 1))
sketch9.addConstraint(Sketcher.Constraint("Vertical", 2))
sketch9.addConstraint(Sketcher.Constraint("Horizontal", 3))
sketch9.addConstraint(Sketcher.Constraint("DistanceX", 1, 1, 1, 2, 56.0))
sketch9.addConstraint(Sketcher.Constraint("DistanceY", 0, 2, 0, 1, 12.0))
sketch9.addConstraint(Sketcher.Constraint("DistanceY", -1, 1, 0, 2, 72.0))
sketch9.addConstraint(Sketcher.Constraint("DistanceX", 0, 2, -1, 1, 28.019054))
pocket2 = doc.addObject("PartDesign::Pocket", "Pocket001")
body5.addObject(pocket2)
pocket2.Profile = sketch9
pocket2.Length = 6
doc.recompute()

boolean6 = doc.addObject("PartDesign::Boolean", "Boolean005")
body6.addObject(boolean6)
boolean6.Type = "Cut"
boolean6.addObjects([body7])

doc.recompute()
